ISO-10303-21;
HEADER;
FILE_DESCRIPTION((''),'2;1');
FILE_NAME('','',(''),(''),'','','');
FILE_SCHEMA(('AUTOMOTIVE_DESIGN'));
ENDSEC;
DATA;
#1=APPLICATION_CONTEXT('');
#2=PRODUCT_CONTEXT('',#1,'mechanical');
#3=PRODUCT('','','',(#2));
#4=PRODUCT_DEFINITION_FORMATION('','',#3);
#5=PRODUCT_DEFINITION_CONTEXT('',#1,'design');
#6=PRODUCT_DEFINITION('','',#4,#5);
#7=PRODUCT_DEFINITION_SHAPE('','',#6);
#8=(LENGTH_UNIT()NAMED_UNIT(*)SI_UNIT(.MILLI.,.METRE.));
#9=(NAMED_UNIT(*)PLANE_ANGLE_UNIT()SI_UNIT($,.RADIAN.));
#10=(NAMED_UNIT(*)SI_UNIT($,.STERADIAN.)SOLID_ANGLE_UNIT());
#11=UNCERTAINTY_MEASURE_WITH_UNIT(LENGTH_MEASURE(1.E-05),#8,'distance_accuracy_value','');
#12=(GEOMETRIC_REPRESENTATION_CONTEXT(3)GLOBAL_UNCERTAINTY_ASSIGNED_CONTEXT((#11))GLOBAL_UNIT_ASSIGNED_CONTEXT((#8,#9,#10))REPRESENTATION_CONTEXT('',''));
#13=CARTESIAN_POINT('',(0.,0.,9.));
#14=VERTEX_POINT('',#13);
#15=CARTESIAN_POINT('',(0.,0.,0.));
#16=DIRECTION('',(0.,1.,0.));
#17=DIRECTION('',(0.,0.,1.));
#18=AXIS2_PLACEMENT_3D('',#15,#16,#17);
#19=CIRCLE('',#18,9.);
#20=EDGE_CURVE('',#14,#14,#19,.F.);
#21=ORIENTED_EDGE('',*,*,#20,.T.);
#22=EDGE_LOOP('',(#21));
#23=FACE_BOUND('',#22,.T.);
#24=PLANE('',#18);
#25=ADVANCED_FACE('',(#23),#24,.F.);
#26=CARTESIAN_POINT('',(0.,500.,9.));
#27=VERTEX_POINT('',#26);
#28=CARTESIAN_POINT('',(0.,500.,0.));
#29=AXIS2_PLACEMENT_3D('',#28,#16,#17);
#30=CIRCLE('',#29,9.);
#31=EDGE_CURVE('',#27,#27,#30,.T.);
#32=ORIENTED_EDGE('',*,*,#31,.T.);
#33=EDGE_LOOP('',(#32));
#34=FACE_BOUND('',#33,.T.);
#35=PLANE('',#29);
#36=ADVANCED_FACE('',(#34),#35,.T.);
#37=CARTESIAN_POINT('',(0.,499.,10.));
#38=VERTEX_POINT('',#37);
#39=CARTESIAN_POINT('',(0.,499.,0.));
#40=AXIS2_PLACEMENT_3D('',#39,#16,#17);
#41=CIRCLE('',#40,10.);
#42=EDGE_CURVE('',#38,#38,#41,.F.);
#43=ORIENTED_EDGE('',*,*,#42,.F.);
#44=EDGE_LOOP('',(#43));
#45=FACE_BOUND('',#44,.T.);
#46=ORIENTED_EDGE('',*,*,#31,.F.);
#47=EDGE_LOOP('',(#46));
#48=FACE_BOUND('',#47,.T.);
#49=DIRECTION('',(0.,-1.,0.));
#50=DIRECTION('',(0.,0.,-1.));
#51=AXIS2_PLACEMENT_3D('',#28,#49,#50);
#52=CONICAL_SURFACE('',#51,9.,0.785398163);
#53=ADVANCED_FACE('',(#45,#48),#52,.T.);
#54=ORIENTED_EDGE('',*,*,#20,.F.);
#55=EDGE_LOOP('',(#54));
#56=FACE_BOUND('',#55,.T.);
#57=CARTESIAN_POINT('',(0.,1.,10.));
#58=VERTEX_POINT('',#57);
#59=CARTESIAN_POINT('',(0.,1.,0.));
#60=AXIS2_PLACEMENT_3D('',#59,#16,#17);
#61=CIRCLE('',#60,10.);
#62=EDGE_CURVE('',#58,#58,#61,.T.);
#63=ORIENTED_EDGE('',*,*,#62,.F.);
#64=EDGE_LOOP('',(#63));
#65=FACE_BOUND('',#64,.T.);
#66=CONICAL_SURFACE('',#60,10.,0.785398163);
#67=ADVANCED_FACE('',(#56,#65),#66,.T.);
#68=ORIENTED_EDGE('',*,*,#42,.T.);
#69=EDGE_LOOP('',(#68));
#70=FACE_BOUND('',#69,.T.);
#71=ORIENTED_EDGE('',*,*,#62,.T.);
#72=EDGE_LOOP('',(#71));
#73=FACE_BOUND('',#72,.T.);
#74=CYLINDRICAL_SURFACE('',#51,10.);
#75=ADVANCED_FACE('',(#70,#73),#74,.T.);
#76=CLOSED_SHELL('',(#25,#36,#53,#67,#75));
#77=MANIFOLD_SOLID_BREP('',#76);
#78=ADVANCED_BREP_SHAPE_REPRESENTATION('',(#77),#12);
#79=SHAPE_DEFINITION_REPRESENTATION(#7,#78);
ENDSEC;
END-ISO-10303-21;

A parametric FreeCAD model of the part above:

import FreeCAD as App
import Part
import Sketcher
Q = App.Units.Quantity


def edges_at(feature, points):
    """Names of the edges that pass closest to the given points."""
    edges = feature.Shape.Edges
    near = lambda p: min(range(len(edges)), key=lambda i: edges[i].distToShape(Part.Vertex(*p))[0])
    return sorted({f"Edge{near(p) + 1}" for p in points})

doc = App.newDocument("Part")
body = doc.addObject("PartDesign::Body", "Body")

# Sketch on XZ plane
sketch1 = doc.addObject("Sketcher::SketchObject", "Sketch")
body.addObject(sketch1)
sketch1.AttachmentSupport = (doc.XZ_Plane, [""])
sketch1.MapMode = "FlatFace"
sketch1.addGeometry(Part.Circle(App.Vector(0, 0, 0), App.Vector(0, 0, 1), 10), False)
sketch1.addConstraint(Sketcher.Constraint("Coincident", 0, 3, -1, 1))
sketch1.addConstraint(Sketcher.Constraint("Diameter", 0, Q("20 mm")))
pad1 = doc.addObject("PartDesign::Pad", "Pad")
body.addObject(pad1)
pad1.Profile = sketch1
pad1.Length = 500
pad1.Reversed = True
doc.recompute()

chamfer = doc.addObject("PartDesign::Chamfer", "Chamfer")
body.addObject(chamfer)
chamfer.Base = (pad1, edges_at(pad1, [(-10, 0, 0), (-10, 500, 0)]))
chamfer.Size = 1

doc.recompute()
